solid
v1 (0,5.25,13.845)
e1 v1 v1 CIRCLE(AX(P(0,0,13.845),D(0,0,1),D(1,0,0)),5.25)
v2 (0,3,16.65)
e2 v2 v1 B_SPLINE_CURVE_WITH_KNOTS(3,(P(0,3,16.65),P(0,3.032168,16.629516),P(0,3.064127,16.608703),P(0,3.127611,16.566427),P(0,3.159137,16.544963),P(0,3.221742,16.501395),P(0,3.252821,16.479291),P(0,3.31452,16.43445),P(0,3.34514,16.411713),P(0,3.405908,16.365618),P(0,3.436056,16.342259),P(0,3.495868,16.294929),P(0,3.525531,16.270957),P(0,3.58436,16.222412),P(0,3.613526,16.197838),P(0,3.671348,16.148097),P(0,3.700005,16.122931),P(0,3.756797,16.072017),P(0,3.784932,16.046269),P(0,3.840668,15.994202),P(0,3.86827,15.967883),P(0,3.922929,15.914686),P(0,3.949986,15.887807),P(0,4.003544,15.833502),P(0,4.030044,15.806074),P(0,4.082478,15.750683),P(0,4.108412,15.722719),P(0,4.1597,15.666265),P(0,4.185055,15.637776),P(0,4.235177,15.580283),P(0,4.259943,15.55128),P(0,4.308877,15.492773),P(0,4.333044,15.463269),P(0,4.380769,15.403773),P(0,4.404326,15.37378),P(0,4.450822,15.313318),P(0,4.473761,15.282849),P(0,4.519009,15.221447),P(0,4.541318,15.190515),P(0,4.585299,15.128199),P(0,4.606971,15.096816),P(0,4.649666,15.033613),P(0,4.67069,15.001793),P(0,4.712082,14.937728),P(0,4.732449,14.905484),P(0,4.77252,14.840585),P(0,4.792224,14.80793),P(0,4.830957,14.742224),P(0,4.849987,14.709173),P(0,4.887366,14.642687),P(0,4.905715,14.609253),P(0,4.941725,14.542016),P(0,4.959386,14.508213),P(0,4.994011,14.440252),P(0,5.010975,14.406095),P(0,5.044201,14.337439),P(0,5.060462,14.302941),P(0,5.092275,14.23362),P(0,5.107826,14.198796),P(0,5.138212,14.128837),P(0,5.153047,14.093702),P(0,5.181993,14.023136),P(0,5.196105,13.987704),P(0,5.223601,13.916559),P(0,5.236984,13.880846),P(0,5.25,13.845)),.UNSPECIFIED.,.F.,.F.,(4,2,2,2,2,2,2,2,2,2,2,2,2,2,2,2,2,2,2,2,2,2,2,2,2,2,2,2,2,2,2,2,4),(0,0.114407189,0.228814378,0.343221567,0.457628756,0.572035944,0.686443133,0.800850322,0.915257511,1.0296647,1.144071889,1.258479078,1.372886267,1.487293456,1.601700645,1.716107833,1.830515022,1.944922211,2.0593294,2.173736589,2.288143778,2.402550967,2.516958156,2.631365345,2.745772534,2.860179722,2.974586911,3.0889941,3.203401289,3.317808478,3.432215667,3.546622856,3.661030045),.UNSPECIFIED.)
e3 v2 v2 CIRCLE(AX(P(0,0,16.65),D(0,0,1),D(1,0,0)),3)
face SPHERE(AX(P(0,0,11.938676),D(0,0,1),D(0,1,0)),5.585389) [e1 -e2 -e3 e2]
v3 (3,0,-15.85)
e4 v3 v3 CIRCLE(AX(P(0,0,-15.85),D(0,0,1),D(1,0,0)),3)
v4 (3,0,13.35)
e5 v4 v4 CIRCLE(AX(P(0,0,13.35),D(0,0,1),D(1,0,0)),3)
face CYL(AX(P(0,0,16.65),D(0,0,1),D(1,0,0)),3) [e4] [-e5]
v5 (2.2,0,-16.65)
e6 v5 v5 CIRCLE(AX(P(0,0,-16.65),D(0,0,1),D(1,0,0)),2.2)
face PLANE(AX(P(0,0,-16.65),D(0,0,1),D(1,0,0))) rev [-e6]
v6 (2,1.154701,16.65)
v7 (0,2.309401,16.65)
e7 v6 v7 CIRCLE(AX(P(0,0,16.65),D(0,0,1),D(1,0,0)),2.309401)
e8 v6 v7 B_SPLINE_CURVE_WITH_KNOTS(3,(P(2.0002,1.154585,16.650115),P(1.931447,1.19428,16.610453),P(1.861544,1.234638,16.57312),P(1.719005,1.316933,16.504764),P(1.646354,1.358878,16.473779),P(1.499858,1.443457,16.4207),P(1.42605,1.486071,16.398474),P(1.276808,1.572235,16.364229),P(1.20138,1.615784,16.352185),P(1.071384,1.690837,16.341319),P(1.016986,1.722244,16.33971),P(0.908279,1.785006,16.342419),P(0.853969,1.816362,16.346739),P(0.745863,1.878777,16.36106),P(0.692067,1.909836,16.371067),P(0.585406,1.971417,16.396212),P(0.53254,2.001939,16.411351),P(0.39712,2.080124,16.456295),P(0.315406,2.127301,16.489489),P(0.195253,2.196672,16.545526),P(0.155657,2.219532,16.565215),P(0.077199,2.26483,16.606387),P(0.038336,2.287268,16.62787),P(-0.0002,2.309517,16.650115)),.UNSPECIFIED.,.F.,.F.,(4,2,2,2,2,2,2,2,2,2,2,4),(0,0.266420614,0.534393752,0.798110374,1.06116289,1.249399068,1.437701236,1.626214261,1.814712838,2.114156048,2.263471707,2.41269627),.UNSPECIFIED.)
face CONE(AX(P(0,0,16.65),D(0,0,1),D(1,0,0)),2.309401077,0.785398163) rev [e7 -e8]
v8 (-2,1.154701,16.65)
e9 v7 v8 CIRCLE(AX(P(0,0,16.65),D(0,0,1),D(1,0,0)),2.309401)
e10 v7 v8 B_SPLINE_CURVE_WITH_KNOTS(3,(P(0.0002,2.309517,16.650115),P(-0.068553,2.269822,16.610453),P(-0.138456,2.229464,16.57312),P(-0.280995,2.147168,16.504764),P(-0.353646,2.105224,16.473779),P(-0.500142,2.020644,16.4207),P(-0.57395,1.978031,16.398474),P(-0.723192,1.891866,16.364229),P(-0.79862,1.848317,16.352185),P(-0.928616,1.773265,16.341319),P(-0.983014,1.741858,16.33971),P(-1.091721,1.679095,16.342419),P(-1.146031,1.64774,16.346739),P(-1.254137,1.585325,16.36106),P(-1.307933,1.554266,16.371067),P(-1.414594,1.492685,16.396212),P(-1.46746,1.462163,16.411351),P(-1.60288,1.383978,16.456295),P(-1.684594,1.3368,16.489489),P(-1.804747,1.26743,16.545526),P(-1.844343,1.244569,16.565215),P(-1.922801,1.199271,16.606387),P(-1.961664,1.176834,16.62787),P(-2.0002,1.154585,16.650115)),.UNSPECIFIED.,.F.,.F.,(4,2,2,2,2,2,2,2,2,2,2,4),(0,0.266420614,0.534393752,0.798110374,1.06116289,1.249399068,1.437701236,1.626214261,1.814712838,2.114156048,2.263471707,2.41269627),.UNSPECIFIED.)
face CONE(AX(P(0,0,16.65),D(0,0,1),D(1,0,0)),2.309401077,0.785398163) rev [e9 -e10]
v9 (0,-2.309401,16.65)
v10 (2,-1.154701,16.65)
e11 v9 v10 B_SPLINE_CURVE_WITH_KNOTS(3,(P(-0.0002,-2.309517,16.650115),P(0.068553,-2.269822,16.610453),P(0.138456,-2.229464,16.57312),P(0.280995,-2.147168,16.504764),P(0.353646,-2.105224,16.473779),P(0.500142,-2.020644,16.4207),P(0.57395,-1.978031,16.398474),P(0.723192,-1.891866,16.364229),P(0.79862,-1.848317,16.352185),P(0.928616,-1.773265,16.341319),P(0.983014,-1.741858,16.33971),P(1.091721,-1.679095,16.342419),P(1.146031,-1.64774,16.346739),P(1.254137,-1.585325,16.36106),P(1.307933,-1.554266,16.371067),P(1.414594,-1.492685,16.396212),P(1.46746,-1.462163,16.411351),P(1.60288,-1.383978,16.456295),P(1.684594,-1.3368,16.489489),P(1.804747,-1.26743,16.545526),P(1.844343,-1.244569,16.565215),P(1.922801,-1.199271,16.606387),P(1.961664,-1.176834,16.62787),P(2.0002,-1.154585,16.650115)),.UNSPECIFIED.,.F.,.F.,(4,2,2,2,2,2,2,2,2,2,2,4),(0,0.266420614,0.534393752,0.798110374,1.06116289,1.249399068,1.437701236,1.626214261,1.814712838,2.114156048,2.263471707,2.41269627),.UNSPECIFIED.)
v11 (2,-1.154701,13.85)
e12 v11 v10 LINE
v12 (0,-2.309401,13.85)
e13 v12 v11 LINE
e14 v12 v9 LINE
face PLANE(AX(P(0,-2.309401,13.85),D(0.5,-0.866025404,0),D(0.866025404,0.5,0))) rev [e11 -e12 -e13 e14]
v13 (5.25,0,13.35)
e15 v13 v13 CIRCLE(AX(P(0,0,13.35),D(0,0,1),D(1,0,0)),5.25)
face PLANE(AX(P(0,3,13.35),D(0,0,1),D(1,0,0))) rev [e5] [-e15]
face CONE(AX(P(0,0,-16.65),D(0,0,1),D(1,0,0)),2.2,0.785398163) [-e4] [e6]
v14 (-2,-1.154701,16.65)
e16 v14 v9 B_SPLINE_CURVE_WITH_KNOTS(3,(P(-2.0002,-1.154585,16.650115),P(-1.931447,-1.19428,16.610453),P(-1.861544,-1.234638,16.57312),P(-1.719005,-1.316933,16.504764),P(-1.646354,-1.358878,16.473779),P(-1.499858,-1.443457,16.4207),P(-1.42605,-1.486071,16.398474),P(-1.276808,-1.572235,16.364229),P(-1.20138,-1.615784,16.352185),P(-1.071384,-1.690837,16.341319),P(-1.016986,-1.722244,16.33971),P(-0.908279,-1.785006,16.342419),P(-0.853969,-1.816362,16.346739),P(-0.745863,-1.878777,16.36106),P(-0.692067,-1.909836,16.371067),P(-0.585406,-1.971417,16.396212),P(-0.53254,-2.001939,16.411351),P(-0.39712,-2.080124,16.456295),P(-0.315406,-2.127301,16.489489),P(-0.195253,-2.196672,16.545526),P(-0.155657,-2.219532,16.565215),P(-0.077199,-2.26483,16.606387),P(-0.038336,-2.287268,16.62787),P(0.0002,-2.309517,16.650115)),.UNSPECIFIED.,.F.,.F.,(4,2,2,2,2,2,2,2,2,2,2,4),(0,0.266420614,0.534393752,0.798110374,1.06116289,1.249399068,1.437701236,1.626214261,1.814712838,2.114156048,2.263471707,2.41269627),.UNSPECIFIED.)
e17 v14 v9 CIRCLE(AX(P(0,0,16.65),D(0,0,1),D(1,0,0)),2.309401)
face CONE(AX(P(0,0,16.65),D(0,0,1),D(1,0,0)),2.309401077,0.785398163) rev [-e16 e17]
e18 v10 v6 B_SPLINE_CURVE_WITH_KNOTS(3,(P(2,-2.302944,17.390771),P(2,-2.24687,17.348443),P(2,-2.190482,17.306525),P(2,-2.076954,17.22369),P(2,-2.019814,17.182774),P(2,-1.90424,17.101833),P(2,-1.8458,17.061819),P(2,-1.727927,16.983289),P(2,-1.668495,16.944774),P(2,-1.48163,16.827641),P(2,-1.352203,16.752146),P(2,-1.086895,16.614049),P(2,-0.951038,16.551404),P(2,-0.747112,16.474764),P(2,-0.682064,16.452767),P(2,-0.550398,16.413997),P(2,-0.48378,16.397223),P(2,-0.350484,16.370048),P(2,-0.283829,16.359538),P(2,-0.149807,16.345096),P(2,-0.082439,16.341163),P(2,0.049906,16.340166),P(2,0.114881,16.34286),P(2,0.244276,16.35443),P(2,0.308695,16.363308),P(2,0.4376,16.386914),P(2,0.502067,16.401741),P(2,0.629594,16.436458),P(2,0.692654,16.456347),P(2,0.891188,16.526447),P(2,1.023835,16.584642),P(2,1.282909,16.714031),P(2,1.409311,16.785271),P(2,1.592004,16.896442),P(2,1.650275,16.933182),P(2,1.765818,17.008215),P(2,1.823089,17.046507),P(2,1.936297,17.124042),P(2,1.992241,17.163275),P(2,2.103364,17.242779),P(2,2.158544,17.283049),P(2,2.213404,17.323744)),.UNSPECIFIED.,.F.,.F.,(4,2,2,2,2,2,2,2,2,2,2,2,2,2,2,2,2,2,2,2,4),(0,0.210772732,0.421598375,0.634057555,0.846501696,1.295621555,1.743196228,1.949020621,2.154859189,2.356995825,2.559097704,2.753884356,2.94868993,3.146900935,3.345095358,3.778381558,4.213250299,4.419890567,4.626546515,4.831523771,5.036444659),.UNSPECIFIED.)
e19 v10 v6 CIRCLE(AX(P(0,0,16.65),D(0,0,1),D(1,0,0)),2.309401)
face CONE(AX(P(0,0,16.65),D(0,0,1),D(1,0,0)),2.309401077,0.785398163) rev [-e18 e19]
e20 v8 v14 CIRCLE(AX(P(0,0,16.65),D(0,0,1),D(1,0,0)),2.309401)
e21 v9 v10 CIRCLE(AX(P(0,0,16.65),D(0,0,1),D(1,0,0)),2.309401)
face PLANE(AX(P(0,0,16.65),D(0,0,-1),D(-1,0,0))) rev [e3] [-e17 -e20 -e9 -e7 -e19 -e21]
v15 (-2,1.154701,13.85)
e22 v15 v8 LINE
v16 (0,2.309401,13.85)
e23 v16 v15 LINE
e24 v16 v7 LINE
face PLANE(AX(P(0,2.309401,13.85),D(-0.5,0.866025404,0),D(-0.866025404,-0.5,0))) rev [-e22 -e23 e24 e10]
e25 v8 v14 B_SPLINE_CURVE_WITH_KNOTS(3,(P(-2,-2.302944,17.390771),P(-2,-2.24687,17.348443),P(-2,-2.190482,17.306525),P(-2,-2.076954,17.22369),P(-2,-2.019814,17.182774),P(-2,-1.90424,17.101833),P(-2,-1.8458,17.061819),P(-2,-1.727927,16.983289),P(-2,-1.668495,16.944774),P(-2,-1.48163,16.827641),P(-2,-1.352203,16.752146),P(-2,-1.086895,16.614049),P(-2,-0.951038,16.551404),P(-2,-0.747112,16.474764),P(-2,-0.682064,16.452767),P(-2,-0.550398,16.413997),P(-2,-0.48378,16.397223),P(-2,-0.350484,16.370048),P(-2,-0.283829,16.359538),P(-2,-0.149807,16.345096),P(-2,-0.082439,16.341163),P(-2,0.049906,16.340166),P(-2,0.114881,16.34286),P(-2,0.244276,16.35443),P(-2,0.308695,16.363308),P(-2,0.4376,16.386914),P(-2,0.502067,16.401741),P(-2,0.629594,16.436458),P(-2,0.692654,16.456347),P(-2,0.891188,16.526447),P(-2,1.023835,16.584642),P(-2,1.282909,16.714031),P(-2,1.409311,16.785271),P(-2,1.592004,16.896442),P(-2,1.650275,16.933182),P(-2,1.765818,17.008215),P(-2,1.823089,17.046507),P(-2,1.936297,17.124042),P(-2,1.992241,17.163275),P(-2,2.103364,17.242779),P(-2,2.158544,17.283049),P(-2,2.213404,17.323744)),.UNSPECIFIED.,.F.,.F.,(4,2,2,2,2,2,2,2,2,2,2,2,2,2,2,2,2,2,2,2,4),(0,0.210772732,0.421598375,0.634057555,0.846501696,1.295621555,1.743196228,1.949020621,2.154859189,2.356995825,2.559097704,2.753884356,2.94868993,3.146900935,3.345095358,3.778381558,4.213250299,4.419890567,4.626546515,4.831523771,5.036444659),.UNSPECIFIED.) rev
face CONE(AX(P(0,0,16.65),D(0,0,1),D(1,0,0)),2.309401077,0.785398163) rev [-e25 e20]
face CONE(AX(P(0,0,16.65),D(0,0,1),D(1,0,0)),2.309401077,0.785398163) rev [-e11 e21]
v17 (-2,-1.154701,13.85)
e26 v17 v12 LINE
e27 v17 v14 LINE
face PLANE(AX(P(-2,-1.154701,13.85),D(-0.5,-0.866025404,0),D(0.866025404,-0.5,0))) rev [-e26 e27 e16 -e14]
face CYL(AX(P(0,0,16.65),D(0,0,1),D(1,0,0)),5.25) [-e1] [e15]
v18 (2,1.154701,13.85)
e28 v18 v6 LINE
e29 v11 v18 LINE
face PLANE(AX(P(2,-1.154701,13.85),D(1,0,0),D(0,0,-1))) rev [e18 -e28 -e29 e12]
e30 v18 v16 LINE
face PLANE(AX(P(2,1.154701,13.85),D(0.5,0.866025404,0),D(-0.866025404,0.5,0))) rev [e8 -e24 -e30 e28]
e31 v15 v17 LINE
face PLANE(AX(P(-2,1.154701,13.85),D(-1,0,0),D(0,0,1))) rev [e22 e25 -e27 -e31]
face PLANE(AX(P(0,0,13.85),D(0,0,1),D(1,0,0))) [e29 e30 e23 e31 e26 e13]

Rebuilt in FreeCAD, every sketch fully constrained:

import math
import FreeCAD as App
import Part
import Sketcher

V = App.Vector
Q = App.Units.Quantity


def add_polygon(sketch, points):
    """Adds a closed chain of lines whose ends are joined by coincident constraints."""
    first, n = sketch.GeometryCount, len(points)
    for a, b in zip(points, points[1:] + points[:1]):
        sketch.addGeometry(Part.LineSegment(App.Vector(*a, 0), App.Vector(*b, 0)), False)
    for i in range(n):
        sketch.addConstraint(Sketcher.Constraint("Coincident", first + i, 2, first + (i + 1) % n, 1))

doc = App.newDocument("Part")
body = doc.addObject("PartDesign::Body", "Body")

sketch1 = body.newObject("Sketcher::SketchObject", "Sketch")
sketch1.AttachmentSupport = (doc.getObject("YZ_Plane"), [""])
sketch1.MapMode = "FlatFace"
sketch1.addGeometry(Part.LineSegment(V(0, 16.65, 0), V(0, -16.65, 0)), False)
sketch1.addGeometry(Part.LineSegment(V(0, -16.65, 0), V(2.2, -16.65, 0)), False)
sketch1.addGeometry(Part.LineSegment(V(2.2, -16.65, 0), V(3, -15.85, 0)), False)
sketch1.addGeometry(Part.LineSegment(V(3, -15.85, 0), V(3, 13.35, 0)), False)
sketch1.addGeometry(Part.LineSegment(V(3, 13.35, 0), V(5.25, 13.35, 0)), False)
sketch1.addGeometry(Part.LineSegment(V(5.25, 13.35, 0), V(5.25, 13.85, 0)), False)
sketch1.addGeometry(Part.ArcOfCircle(Part.Circle(V(0, 11.94, 0), V(0, 0, 1), 5.59), math.radians(20), math.radians(58)), False)
sketch1.addGeometry(Part.LineSegment(V(3, 16.65, 0), V(0, 16.65, 0)), False)
sketch1.addConstraint(Sketcher.Constraint("Coincident", 0, 2, 1, 1))
sketch1.addConstraint(Sketcher.Constraint("Coincident", 1, 2, 2, 1))
sketch1.addConstraint(Sketcher.Constraint("Coincident", 2, 2, 3, 1))
sketch1.addConstraint(Sketcher.Constraint("Coincident", 3, 2, 4, 1))
sketch1.addConstraint(Sketcher.Constraint("Coincident", 4, 2, 5, 1))
sketch1.addConstraint(Sketcher.Constraint("Coincident", 5, 2, 6, 1))
sketch1.addConstraint(Sketcher.Constraint("Coincident", 6, 2, 7, 1))
sketch1.addConstraint(Sketcher.Constraint("Coincident", 7, 2, 0, 1))
sketch1.addConstraint(Sketcher.Constraint("Vertical", 0))
sketch1.addConstraint(Sketcher.Constraint("Horizontal", 1))
sketch1.addConstraint(Sketcher.Constraint("Vertical", 3))
sketch1.addConstraint(Sketcher.Constraint("Horizontal", 4))
sketch1.addConstraint(Sketcher.Constraint("Vertical", 5))
sketch1.addConstraint(Sketcher.Constraint("Horizontal", 7))
sketch1.addConstraint(Sketcher.Constraint("Symmetric", 0, 2, 7, 2, -1, 1))
sketch1.addConstraint(Sketcher.Constraint("PointOnObject", 6, 3, -2))
sketch1.addConstraint(Sketcher.Constraint("Vertical", 3, 2, 6, 2))
sketch1.addConstraint(Sketcher.Constraint("DistanceX", 7, 2, 7, 1, 3.0))
sketch1.addConstraint(Sketcher.Constraint("Angle", 2, Q("45 deg")))
sketch1.addConstraint(Sketcher.Constraint("DistanceX", 1, 1, 1, 2, 2.2))
sketch1.addConstraint(Sketcher.Constraint("DistanceY", 0, 2, 0, 1, 33.3))
sketch1.addConstraint(Sketcher.Constraint("DistanceY", 3, 1, 3, 2, 29.2))
sketch1.addConstraint(Sketcher.Constraint("DistanceX", 4, 1, 4, 2, 2.25))
sketch1.addConstraint(Sketcher.Constraint("DistanceY", 5, 1, 5, 2, 0.495))
revolution = body.newObject("PartDesign::Revolution", "Revolution")
revolution.Profile = sketch1
revolution.ReferenceAxis = (sketch1, ["V_Axis"])
revolution.Angle = 360

sketch2 = body.newObject("Sketcher::SketchObject", "Sketch001")
sketch2.AttachmentSupport = (doc.getObject("XY_Plane"), [""])
sketch2.MapMode = "FlatFace"
sketch2.AttachmentOffset = App.Placement(V(0, 0, 16.65), App.Rotation())
add_polygon(sketch2, [(0, 2.3), (-2, 1.2), (-2, -1.2), (0, -2.3), (2, -1.2), (2, 1.2)])
sketch2.addConstraint(Sketcher.Constraint("Vertical", 1))
sketch2.addConstraint(Sketcher.Constraint("Vertical", 4))
sketch2.addConstraint(Sketcher.Constraint("Symmetric", 0, 2, 3, 2, -1, 1))
sketch2.addConstraint(Sketcher.Constraint("Symmetric", 2, 2, 5, 2, -1, 1))
sketch2.addConstraint(Sketcher.Constraint("PointOnObject", 2, 2, -2))
sketch2.addConstraint(Sketcher.Constraint("Parallel", 2, 5))
sketch2.addConstraint(Sketcher.Constraint("Horizontal", 1, 2, 3, 2))
sketch2.addConstraint(Sketcher.Constraint("Angle", 0, Q("-150 deg")))
sketch2.addConstraint(Sketcher.Constraint("DistanceX", 0, 2, -1, 1, 2.0))
sketch2.addConstraint(Sketcher.Constraint("DistanceY", 1, 2, 1, 1, 2.309401))
pocket1 = body.newObject("PartDesign::Pocket", "Pocket")
pocket1.Profile = sketch2
pocket1.Length = 2.8

sketch3 = body.newObject("Sketcher::SketchObject", "Sketch002")
sketch3.AttachmentSupport = (doc.getObject("YZ_Plane"), [""])
sketch3.MapMode = "FlatFace"
add_polygon(sketch3, [(0, 16.6), (-2.3, 16.6), (0, 14.3)])
sketch3.addConstraint(Sketcher.Constraint("Horizontal", 0))
sketch3.addConstraint(Sketcher.Constraint("Vertical", 2))
sketch3.addConstraint(Sketcher.Constraint("PointOnObject", 1, 2, -2))
sketch3.addConstraint(Sketcher.Constraint("Equal", 0, 2))
sketch3.addConstraint(Sketcher.Constraint("DistanceY", -1, 1, 0, 2, 16.65))
sketch3.addConstraint(Sketcher.Constraint("DistanceX", 0, 2, 0, 1, 2.309401))
groove = body.newObject("PartDesign::Groove", "Groove")
groove.Profile = sketch3
groove.ReferenceAxis = (sketch3, ["V_Axis"])
groove.Angle = 360

doc.recompute()
